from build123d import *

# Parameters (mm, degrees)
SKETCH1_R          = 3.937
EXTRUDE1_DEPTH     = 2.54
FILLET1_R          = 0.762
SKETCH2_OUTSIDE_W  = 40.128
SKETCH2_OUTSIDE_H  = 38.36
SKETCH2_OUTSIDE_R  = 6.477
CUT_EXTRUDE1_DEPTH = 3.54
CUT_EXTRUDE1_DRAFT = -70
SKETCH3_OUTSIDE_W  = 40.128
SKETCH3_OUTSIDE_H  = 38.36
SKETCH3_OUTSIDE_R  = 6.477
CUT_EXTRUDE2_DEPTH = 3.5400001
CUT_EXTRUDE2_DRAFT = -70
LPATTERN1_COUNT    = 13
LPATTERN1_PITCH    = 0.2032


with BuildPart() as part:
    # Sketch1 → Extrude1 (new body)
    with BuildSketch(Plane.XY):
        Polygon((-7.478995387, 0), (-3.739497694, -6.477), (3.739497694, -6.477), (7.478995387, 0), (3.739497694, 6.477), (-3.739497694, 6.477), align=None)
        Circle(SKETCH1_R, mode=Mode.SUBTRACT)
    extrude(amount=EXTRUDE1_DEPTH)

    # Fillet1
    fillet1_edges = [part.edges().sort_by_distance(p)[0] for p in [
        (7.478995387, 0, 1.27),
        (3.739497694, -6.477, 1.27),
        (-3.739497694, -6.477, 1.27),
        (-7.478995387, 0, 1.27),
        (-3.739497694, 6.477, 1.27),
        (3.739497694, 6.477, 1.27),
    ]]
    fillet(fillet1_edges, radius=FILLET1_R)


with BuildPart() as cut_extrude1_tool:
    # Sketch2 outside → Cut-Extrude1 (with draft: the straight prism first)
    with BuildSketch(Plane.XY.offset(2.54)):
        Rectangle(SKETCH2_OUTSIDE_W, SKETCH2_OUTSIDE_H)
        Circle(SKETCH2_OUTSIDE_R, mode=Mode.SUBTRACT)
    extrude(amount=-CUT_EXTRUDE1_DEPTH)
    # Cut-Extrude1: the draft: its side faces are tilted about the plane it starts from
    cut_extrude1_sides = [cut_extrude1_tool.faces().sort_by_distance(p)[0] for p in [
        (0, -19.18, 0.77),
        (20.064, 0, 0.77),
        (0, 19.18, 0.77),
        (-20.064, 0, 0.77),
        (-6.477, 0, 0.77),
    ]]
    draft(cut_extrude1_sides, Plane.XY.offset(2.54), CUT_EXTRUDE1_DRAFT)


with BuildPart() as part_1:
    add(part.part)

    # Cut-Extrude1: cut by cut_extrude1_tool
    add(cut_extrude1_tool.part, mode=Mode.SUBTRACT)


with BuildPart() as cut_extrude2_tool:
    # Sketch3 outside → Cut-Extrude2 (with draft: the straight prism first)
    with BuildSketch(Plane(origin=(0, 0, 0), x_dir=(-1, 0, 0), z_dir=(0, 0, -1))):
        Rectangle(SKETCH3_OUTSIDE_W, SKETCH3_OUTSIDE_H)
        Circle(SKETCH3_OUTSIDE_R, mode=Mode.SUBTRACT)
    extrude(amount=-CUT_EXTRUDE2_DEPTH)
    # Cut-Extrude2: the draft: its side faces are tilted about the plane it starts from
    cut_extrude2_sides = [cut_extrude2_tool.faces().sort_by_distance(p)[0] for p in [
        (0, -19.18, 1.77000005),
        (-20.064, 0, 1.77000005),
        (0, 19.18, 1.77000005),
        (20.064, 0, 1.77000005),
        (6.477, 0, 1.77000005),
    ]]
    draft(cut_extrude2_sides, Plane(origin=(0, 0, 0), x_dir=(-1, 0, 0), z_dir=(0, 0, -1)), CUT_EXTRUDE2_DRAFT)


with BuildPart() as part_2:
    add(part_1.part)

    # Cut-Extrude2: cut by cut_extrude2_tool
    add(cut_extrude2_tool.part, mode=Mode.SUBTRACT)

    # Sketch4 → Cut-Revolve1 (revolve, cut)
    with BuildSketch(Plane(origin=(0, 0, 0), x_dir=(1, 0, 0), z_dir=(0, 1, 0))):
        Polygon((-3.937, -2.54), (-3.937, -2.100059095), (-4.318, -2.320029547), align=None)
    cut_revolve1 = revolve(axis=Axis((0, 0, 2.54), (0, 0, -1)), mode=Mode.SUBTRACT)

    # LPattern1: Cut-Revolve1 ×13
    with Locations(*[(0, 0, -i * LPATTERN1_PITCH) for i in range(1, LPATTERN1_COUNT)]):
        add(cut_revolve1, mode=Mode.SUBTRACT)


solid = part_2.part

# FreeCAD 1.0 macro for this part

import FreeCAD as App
import Part
import Sketcher
from FreeCAD import Vector
Q = App.Units.Quantity


def edges_at(feature, points):
    """Names of the edges that pass closest to the given points."""
    edges = feature.Shape.Edges
    near = lambda p: min(range(len(edges)), key=lambda i: edges[i].distToShape(Part.Vertex(*p))[0])
    return sorted({f"Edge{near(p) + 1}" for p in points})


def faces_at(feature, points):
    """Names of the faces that lie closest to the given points."""
    faces = feature.Shape.Faces
    near = lambda p: min(range(len(faces)), key=lambda i: faces[i].distToShape(Part.Vertex(*p))[0])
    return sorted({f"Face{near(p) + 1}" for p in points})

doc = App.newDocument("Part")
body = doc.addObject("PartDesign::Body", "Body")

# Sketch on XY plane
sketch1 = body.newObject("Sketcher::SketchObject", "Sketch")
sketch1.AttachmentSupport = (doc.getObject("XY_Plane"), [""])
sketch1.MapMode = "FlatFace"
sketch1.addGeometry([
    Part.LineSegment(Vector(-7.5, 0, 0), Vector(-3.7, -6.5, 0)),  # 0
    Part.LineSegment(Vector(-3.7, -6.5, 0), Vector(3.7, -6.5, 0)),  # 1
    Part.LineSegment(Vector(3.7, -6.5, 0), Vector(7.5, 0, 0)),  # 2
    Part.LineSegment(Vector(7.5, 0, 0), Vector(3.7, 6.5, 0)),  # 3
    Part.LineSegment(Vector(3.7, 6.5, 0), Vector(-3.7, 6.5, 0)),  # 4
    Part.LineSegment(Vector(-3.7, 6.5, 0), Vector(-7.5, 0, 0)),  # 5
    Part.Circle(Vector(0, 0, 0), Vector(0, 0, 1), 3.9),  # 6
], False)
sketch1.addConstraint([
    Sketcher.Constraint("Coincident", 0, 2, 1, 1),
    Sketcher.Constraint("Coincident", 1, 2, 2, 1),
    Sketcher.Constraint("Coincident", 2, 2, 3, 1),
    Sketcher.Constraint("Coincident", 3, 2, 4, 1),
    Sketcher.Constraint("Coincident", 4, 2, 5, 1),
    Sketcher.Constraint("Coincident", 5, 2, 0, 1),
    Sketcher.Constraint("Horizontal", 1),
    Sketcher.Constraint("Horizontal", 4),
    Sketcher.Constraint("Coincident", 6, 3, -1, 1),
    Sketcher.Constraint("Symmetric", 0, 2, 3, 2, -1, 1),
    Sketcher.Constraint("Symmetric", 2, 2, 5, 2, -1, 1),
    Sketcher.Constraint("PointOnObject", 2, 2, -1),
    Sketcher.Constraint("Parallel", 2, 5),
    Sketcher.Constraint("Vertical", 1, 2, 3, 2),
    Sketcher.Constraint("Diameter", 6, Q("0.31 in")),
    Sketcher.Constraint("Angle", 0, Q("-60 deg")),
    Sketcher.Constraint("DistanceY", 1, 2, 3, 2, Q("0.51 in")),
    Sketcher.Constraint("DistanceX", 1, 1, 1, 2, 7.478995),
])
pad1 = body.newObject("PartDesign::Pad", "Pad")
pad1.Profile = sketch1
pad1.Length = Q("0.1 in")
doc.recompute()

fillet = body.newObject("PartDesign::Fillet", "Fillet")
fillet.Base = (pad1, edges_at(pad1, [
    (7.479, 0, 1.27),
    (3.739, -6.477, 1.27),
    (-3.739, -6.477, 1.27),
    (-7.479, 0, 1.27),
    (-3.739, 6.477, 1.27),
    (3.739, 6.477, 1.27),
]))
fillet.Radius = Q("0.03 in")
body2 = doc.addObject("PartDesign::Body", "Body001")

# Sketch on XY plane
sketch2 = body2.newObject("Sketcher::SketchObject", "Sketch001")
sketch2.AttachmentSupport = (doc.getObject("XY_Plane001"), [""])
sketch2.MapMode = "FlatFace"
sketch2.AttachmentOffset = App.Placement(Vector(0, 0, 0.1 * 25.4), App.Rotation())
sketch2.addGeometry([
    Part.LineSegment(Vector(-20, 19, 0), Vector(-20, -19, 0)),  # 0
    Part.LineSegment(Vector(-20, -19, 0), Vector(20, -19, 0)),  # 1
    Part.LineSegment(Vector(20, -19, 0), Vector(20, 19, 0)),  # 2
    Part.LineSegment(Vector(20, 19, 0), Vector(-20, 19, 0)),  # 3
    Part.Circle(Vector(0, 0, 0), Vector(0, 0, 1), 6),  # 4
], False)
sketch2.addConstraint([
    Sketcher.Constraint("Coincident", 0, 2, 1, 1),
    Sketcher.Constraint("Coincident", 1, 2, 2, 1),
    Sketcher.Constraint("Coincident", 2, 2, 3, 1),
    Sketcher.Constraint("Coincident", 3, 2, 0, 1),
    Sketcher.Constraint("Vertical", 0),
    Sketcher.Constraint("Horizontal", 1),
    Sketcher.Constraint("Vertical", 2),
    Sketcher.Constraint("Horizontal", 3),
    Sketcher.Constraint("Coincident", 4, 3, -1, 1),
    Sketcher.Constraint("Symmetric", 0, 2, 2, 2, -1, 1),
    Sketcher.Constraint("Diameter", 4, Q("0.51 in")),
    Sketcher.Constraint("DistanceX", 1, 1, 1, 2, 40.128),
    Sketcher.Constraint("DistanceY", 0, 2, 0, 1, 38.36),
])
pad2 = body2.newObject("PartDesign::Pad", "Pad001")
pad2.Profile = sketch2
pad2.Length = 3.54
pad2.Reversed = True
doc.recompute()

datumplane = body2.newObject("PartDesign::Plane", "DatumPlane")
datumplane.AttachmentSupport = (doc.getObject("XY_Plane001"), [""])
datumplane.MapMode = "FlatFace"
datumplane.AttachmentOffset = App.Placement(Vector(0, 0, 0.1 * 25.4), App.Rotation())
draft = body2.newObject("PartDesign::Draft", "Draft")
draft.Base = (pad2, faces_at(pad2, [
    (0, -19.18, 0.77),
    (20.064, 0, 0.77),
    (0, 19.18, 0.77),
    (-20.064, 0, 0.77),
    (-6.477, 0, 0.77),
]))
draft.NeutralPlane = (datumplane, [""])
draft.Angle = 70
draft.Reversed = True
doc.recompute()

boolean = body.newObject("PartDesign::Boolean", "Boolean")
boolean.Type = "Cut"
boolean.addObjects([body2])
body3 = doc.addObject("PartDesign::Body", "Body002")

# Sketch on XY plane
sketch3 = body3.newObject("Sketcher::SketchObject", "Sketch002")
sketch3.AttachmentSupport = (doc.getObject("XY_Plane002"), [""])
sketch3.MapMode = "FlatFace"
sketch3.addGeometry([
    Part.LineSegment(Vector(20, 19, 0), Vector(20, -19, 0)),  # 0
    Part.LineSegment(Vector(20, -19, 0), Vector(-20, -19, 0)),  # 1
    Part.LineSegment(Vector(-20, -19, 0), Vector(-20, 19, 0)),  # 2
    Part.LineSegment(Vector(-20, 19, 0), Vector(20, 19, 0)),  # 3
    Part.Circle(Vector(0, 0, 0), Vector(0, 0, 1), 6),  # 4
], False)
sketch3.addConstraint([
    Sketcher.Constraint("Coincident", 0, 2, 1, 1),
    Sketcher.Constraint("Coincident", 1, 2, 2, 1),
    Sketcher.Constraint("Coincident", 2, 2, 3, 1),
    Sketcher.Constraint("Coincident", 3, 2, 0, 1),
    Sketcher.Constraint("Vertical", 0),
    Sketcher.Constraint("Horizontal", 1),
    Sketcher.Constraint("Vertical", 2),
    Sketcher.Constraint("Horizontal", 3),
    Sketcher.Constraint("Coincident", 4, 3, -1, 1),
    Sketcher.Constraint("Symmetric", 0, 2, 2, 2, -1, 1),
    Sketcher.Constraint("Diameter", 4, Q("0.51 in")),
    Sketcher.Constraint("DistanceX", 1, 2, 1, 1, 40.128),
    Sketcher.Constraint("DistanceY", 0, 2, 0, 1, 38.36),
])
pad3 = body3.newObject("PartDesign::Pad", "Pad002")
pad3.Profile = sketch3
pad3.Length = 3.54
doc.recompute()

draft2 = body3.newObject("PartDesign::Draft", "Draft001")
draft2.Base = (pad3, faces_at(pad3, [
    (0, -19.18, 1.77),
    (-20.064, 0, 1.77),
    (0, 19.18, 1.77),
    (20.064, 0, 1.77),
    (6.477, 0, 1.77),
]))
draft2.NeutralPlane = (doc.getObject("XY_Plane002"), [""])
draft2.Angle = 70
draft2.Reversed = False
doc.recompute()

boolean2 = body.newObject("PartDesign::Boolean", "Boolean001")
boolean2.Type = "Cut"
boolean2.addObjects([body3])

# Sketch on XZ plane
sketch4 = body.newObject("Sketcher::SketchObject", "Sketch003")
sketch4.AttachmentSupport = (doc.getObject("XZ_Plane"), [""])
sketch4.MapMode = "FlatFace"
sketch4.addGeometry([
    Part.LineSegment(Vector(-3.94, 2.54, 0), Vector(-3.94, 2.1, 0)),
    Part.LineSegment(Vector(-3.94, 2.1, 0), Vector(-4.32, 2.32, 0)),
    Part.LineSegment(Vector(-4.32, 2.32, 0), Vector(-3.94, 2.54, 0)),
], False)
sketch4.addConstraint([
    Sketcher.Constraint("Coincident", 0, 2, 1, 1),
    Sketcher.Constraint("Coincident", 1, 2, 2, 1),
    Sketcher.Constraint("Coincident", 2, 2, 0, 1),
    Sketcher.Constraint("Vertical", 0),
    Sketcher.Constraint("Equal", 1, 2),
    Sketcher.Constraint("Angle", 1, Q("150 deg")),
    Sketcher.Constraint("DistanceY", -1, 1, 2, 2, Q("0.1 in")),
    Sketcher.Constraint("DistanceX", 1, 2, -1, 1, Q("0.17 in")),
    Sketcher.Constraint("DistanceX", 0, 2, -1, 1, Q("0.155 in")),
])
groove = body.newObject("PartDesign::Groove", "Groove")
groove.Profile = sketch4
groove.ReferenceAxis = (sketch4, ["V_Axis"])
groove.Angle = 360
doc.recompute()

linearpattern = body.newObject("PartDesign::LinearPattern", "LinearPattern")
linearpattern.Originals = [groove]
linearpattern.Direction = (doc.getObject("Z_Axis"), [""])
linearpattern.Mode = "offset"
linearpattern.Offset = Q("0.008 in")
linearpattern.Occurrences = 13
linearpattern.Reversed = True
body.Tip = linearpattern

doc.recompute()
